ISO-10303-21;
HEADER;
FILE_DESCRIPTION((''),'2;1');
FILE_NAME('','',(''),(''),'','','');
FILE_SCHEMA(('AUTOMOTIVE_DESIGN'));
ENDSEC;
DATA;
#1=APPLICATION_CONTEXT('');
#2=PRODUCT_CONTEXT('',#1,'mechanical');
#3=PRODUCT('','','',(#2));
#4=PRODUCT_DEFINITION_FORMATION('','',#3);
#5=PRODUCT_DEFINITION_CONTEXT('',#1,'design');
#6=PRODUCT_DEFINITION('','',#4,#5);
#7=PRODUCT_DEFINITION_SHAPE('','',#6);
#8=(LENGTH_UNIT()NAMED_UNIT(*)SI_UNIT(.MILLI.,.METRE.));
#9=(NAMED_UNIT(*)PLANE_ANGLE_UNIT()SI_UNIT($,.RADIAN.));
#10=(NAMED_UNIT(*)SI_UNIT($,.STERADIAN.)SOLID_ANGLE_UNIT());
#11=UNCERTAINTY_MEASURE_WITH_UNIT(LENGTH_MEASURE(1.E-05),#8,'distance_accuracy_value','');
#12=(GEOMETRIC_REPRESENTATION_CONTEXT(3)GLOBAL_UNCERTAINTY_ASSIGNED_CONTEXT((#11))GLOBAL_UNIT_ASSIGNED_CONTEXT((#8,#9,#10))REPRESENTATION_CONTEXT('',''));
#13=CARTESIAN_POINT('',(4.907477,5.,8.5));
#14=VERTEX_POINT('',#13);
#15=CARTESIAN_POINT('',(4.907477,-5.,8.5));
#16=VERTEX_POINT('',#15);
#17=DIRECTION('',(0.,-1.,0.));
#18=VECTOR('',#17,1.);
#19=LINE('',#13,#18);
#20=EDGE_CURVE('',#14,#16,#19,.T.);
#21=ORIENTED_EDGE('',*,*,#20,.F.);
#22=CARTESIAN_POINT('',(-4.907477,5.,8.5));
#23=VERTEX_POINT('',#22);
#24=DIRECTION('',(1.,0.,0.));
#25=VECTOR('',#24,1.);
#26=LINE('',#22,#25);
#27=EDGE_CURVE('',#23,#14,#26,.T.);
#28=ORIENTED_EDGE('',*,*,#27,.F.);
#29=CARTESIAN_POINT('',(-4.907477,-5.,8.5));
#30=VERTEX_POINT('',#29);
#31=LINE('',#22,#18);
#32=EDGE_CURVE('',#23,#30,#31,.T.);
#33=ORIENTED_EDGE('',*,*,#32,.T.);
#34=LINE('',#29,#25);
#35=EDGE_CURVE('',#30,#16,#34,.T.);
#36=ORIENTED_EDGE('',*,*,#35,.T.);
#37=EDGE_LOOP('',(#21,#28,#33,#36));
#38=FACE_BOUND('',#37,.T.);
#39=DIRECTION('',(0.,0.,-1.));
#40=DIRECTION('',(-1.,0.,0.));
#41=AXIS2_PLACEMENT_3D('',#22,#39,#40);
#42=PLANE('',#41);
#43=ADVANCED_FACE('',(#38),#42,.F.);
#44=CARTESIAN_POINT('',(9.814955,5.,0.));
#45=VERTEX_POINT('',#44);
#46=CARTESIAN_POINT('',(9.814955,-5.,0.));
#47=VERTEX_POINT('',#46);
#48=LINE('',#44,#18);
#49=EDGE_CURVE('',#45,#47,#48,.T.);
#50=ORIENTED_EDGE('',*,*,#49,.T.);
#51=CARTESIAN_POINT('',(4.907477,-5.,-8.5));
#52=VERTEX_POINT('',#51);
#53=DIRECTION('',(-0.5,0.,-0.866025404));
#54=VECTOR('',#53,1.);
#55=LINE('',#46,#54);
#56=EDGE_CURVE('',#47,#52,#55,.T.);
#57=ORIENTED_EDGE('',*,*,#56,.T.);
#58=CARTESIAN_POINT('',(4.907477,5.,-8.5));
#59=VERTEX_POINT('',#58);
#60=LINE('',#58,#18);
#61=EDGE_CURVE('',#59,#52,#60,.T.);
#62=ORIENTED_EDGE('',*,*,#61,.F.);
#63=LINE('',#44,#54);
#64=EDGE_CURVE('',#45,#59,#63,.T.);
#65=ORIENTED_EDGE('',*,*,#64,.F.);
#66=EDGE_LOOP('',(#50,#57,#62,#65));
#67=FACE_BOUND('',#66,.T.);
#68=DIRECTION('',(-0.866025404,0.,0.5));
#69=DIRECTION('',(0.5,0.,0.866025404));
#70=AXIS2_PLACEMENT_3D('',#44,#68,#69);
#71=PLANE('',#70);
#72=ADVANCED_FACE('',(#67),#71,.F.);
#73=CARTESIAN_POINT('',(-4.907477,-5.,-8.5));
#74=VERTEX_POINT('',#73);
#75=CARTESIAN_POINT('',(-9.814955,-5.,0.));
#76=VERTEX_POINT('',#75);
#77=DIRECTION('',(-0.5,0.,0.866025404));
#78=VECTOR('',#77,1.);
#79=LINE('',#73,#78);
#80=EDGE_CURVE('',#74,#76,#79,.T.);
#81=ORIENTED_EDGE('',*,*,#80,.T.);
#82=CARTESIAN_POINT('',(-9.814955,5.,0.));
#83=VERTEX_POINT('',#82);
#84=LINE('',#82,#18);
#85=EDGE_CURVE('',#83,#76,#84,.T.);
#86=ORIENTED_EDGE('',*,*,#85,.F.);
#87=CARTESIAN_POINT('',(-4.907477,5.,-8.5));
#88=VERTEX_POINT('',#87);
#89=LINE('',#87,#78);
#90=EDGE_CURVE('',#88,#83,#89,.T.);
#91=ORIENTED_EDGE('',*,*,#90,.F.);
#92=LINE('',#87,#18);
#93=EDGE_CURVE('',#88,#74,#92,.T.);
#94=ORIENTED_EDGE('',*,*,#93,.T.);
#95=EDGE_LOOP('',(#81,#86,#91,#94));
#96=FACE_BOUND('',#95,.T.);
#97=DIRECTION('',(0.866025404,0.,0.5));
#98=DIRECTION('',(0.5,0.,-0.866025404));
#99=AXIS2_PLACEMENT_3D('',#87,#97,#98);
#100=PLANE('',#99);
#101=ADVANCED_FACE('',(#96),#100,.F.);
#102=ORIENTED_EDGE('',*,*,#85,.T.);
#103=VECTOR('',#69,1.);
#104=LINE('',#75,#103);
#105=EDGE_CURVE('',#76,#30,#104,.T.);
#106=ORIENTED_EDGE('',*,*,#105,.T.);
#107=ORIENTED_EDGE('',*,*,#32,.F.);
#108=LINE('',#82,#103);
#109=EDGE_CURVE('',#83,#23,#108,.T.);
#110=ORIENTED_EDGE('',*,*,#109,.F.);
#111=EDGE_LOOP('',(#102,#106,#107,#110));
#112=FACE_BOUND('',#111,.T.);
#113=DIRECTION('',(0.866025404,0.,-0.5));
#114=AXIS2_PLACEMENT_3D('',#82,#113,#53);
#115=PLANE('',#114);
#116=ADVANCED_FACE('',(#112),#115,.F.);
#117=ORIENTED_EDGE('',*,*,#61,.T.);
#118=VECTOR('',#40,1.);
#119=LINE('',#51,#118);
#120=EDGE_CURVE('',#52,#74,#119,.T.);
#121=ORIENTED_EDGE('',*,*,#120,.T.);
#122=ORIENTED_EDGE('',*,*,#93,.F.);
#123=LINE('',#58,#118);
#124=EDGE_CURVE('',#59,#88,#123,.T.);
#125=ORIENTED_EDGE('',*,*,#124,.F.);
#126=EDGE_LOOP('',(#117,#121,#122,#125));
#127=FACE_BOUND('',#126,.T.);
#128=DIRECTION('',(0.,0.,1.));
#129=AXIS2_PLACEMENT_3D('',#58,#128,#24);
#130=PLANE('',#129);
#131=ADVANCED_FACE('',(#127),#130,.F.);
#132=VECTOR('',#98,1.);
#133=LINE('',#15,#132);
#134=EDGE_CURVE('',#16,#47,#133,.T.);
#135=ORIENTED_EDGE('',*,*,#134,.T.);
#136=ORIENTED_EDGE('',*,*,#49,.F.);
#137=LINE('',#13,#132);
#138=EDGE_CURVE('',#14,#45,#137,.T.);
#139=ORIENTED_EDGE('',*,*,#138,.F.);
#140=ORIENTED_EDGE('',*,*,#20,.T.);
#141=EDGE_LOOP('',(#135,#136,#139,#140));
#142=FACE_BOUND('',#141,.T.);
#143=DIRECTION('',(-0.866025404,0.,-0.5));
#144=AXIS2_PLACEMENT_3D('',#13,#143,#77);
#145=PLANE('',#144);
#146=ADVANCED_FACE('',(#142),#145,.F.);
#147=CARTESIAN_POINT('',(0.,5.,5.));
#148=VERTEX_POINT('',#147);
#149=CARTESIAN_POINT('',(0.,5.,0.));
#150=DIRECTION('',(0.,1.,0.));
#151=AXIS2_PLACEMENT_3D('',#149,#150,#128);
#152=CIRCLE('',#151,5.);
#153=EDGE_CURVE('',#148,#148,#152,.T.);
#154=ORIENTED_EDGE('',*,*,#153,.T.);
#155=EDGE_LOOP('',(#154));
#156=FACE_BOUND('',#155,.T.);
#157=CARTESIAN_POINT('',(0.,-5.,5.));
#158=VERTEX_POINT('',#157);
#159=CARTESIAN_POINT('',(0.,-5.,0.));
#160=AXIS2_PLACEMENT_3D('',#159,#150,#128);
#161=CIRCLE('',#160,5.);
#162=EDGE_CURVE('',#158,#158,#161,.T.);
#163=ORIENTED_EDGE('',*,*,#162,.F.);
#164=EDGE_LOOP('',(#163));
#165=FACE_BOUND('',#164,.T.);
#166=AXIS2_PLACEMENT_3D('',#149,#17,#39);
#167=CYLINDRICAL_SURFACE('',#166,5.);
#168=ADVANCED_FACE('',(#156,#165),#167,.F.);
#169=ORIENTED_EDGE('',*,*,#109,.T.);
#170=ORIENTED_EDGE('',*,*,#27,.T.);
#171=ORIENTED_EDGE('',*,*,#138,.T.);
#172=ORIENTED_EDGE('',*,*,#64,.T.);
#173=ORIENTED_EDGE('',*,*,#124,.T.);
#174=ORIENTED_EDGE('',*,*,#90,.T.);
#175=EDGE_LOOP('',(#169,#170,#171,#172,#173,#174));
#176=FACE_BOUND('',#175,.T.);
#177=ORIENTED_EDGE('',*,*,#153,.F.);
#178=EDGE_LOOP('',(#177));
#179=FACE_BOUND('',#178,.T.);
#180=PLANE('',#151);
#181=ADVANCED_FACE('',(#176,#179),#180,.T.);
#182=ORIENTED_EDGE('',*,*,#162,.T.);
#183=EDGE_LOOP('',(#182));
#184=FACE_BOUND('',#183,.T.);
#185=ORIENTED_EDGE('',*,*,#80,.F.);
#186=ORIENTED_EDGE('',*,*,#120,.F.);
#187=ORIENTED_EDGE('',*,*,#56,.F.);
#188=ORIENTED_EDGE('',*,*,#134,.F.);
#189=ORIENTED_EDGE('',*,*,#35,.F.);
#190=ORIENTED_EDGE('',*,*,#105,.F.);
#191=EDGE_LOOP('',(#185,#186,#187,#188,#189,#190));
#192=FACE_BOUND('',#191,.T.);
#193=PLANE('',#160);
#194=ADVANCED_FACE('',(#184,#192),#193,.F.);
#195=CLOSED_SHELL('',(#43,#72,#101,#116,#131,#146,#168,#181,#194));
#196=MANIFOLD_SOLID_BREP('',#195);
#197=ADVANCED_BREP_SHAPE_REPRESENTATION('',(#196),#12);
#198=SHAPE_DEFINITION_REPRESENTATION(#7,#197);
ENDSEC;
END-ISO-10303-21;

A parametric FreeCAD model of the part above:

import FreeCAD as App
import Part
import Sketcher
Q = App.Units.Quantity


def add_polygon(sketch, points):
    """Adds a closed chain of lines whose ends are joined by coincident constraints."""
    first, n = sketch.GeometryCount, len(points)
    for a, b in zip(points, points[1:] + points[:1]):
        sketch.addGeometry(Part.LineSegment(App.Vector(*a, 0), App.Vector(*b, 0)), False)
    for i in range(n):
        sketch.addConstraint(Sketcher.Constraint("Coincident", first + i, 2, first + (i + 1) % n, 1))

doc = App.newDocument("Part")
body = doc.addObject("PartDesign::Body", "Body")

sketch1 = body.newObject("Sketcher::SketchObject", "Sketch")
sketch1.AttachmentSupport = (doc.getObject("XZ_Plane"), [""])
sketch1.MapMode = "FlatFace"
add_polygon(sketch1, [(10, 0), (5, -8), (-5, -8), (-10, 0), (-5, 8), (5, 8)])
sketch1.addGeometry(Part.Circle(App.Vector(0, 0, 0), App.Vector(0, 0, 1), 5), False)
sketch1.addConstraint([
    Sketcher.Constraint("Horizontal", 1),
    Sketcher.Constraint("Horizontal", 4),
    Sketcher.Constraint("Coincident", 6, 3, -1, 1),
    Sketcher.Constraint("Symmetric", 0, 2, 3, 2, -1, 1),
    Sketcher.Constraint("Symmetric", 2, 2, 5, 2, -1, 1),
    Sketcher.Constraint("PointOnObject", 2, 2, -1),
    Sketcher.Constraint("Parallel", 2, 5),
    Sketcher.Constraint("Vertical", 1, 2, 3, 2),
    Sketcher.Constraint("Diameter", 6, Q("10 mm")),
    Sketcher.Constraint("Angle", 0, Q("-120 deg")),
    Sketcher.Constraint("DistanceY", 1, 2, 3, 2, Q("17 mm")),
    Sketcher.Constraint("DistanceX", 1, 2, 1, 1, Q("9.814955 mm")),
])
pad1 = body.newObject("PartDesign::Pad", "Pad")
pad1.Profile = sketch1
pad1.Length = 10
pad1.Midplane = True

doc.recompute()
